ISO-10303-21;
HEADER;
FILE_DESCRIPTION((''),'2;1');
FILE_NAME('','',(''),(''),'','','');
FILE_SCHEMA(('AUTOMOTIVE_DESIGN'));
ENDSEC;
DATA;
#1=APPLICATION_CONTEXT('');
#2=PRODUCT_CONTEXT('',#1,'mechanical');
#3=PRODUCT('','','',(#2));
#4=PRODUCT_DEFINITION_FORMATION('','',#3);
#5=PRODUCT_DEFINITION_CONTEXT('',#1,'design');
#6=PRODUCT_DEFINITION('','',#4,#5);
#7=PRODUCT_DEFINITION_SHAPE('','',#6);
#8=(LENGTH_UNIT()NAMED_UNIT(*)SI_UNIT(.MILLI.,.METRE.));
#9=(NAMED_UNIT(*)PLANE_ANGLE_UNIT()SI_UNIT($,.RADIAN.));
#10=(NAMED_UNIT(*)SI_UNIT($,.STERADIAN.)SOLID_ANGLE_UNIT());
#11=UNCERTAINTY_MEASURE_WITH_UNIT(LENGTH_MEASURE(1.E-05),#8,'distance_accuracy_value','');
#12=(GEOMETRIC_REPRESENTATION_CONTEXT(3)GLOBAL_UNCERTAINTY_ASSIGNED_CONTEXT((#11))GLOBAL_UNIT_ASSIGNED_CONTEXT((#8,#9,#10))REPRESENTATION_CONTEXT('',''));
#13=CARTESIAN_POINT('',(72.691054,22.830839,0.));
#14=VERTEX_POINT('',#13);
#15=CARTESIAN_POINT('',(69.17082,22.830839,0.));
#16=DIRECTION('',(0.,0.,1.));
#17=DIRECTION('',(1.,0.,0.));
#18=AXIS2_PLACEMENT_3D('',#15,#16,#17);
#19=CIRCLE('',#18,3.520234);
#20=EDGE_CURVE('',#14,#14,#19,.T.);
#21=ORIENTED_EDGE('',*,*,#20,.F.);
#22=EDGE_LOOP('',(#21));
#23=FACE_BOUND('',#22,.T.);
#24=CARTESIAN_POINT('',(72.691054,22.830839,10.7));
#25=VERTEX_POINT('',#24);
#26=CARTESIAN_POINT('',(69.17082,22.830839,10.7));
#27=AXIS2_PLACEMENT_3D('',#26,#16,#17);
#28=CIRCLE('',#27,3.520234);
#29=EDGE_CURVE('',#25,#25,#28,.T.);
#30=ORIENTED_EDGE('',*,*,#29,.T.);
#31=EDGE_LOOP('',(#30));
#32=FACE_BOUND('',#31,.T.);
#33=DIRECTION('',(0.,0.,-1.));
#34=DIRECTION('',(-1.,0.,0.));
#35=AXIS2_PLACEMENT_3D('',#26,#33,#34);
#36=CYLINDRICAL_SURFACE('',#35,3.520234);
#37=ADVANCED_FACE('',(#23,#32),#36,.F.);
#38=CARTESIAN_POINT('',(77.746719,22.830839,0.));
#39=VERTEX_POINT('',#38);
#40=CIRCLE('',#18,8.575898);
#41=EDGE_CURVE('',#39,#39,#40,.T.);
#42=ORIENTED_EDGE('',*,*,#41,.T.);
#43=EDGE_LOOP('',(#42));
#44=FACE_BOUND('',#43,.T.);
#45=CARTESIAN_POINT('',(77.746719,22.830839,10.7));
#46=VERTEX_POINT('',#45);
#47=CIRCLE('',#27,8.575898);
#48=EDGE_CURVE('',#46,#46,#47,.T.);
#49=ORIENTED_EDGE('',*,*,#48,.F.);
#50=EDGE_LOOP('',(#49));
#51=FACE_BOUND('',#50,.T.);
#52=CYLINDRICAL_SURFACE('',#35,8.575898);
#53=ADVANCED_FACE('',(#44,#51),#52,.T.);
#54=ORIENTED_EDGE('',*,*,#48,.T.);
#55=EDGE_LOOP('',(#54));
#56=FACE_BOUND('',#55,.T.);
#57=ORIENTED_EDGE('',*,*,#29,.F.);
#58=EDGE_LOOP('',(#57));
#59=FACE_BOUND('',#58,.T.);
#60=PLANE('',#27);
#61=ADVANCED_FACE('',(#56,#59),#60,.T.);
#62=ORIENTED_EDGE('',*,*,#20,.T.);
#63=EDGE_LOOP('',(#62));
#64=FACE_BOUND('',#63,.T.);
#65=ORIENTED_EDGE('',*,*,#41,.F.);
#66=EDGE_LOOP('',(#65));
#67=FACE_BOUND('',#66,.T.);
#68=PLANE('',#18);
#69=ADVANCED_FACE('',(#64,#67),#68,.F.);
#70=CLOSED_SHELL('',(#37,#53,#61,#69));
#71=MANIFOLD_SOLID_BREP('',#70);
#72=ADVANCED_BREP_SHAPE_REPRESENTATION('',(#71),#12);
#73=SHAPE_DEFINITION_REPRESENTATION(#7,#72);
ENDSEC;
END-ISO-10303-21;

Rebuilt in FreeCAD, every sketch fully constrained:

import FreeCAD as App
import Part
import Sketcher

V = App.Vector

doc = App.newDocument("Part")
body = doc.addObject("PartDesign::Body", "Body")

sketch1 = doc.addObject("Sketcher::SketchObject", "Sketch")
body.addObject(sketch1)
sketch1.AttachmentSupport = (doc.XY_Plane, [""])
sketch1.MapMode = "FlatFace"
sketch1.addGeometry([
    Part.Circle(V(69.2, 22.8, 0), V(0, 0, 1), 8.6),
    Part.Circle(V(69.2, 22.8, 0), V(0, 0, 1), 3.5),
], False)
sketch1.addConstraint([
    Sketcher.Constraint("Coincident", 1, 3, 0, 3),
    Sketcher.Constraint("Diameter", 0, 17.151797),
    Sketcher.Constraint("Diameter", 1, 7.040467),
    Sketcher.Constraint("DistanceX", -1, 1, 0, 3, 69.17082),
    Sketcher.Constraint("DistanceY", -1, 1, 0, 3, 22.830839),
])
pad1 = doc.addObject("PartDesign::Pad", "Pad")
body.addObject(pad1)
pad1.Profile = sketch1
pad1.Length = 10.7

doc.recompute()
